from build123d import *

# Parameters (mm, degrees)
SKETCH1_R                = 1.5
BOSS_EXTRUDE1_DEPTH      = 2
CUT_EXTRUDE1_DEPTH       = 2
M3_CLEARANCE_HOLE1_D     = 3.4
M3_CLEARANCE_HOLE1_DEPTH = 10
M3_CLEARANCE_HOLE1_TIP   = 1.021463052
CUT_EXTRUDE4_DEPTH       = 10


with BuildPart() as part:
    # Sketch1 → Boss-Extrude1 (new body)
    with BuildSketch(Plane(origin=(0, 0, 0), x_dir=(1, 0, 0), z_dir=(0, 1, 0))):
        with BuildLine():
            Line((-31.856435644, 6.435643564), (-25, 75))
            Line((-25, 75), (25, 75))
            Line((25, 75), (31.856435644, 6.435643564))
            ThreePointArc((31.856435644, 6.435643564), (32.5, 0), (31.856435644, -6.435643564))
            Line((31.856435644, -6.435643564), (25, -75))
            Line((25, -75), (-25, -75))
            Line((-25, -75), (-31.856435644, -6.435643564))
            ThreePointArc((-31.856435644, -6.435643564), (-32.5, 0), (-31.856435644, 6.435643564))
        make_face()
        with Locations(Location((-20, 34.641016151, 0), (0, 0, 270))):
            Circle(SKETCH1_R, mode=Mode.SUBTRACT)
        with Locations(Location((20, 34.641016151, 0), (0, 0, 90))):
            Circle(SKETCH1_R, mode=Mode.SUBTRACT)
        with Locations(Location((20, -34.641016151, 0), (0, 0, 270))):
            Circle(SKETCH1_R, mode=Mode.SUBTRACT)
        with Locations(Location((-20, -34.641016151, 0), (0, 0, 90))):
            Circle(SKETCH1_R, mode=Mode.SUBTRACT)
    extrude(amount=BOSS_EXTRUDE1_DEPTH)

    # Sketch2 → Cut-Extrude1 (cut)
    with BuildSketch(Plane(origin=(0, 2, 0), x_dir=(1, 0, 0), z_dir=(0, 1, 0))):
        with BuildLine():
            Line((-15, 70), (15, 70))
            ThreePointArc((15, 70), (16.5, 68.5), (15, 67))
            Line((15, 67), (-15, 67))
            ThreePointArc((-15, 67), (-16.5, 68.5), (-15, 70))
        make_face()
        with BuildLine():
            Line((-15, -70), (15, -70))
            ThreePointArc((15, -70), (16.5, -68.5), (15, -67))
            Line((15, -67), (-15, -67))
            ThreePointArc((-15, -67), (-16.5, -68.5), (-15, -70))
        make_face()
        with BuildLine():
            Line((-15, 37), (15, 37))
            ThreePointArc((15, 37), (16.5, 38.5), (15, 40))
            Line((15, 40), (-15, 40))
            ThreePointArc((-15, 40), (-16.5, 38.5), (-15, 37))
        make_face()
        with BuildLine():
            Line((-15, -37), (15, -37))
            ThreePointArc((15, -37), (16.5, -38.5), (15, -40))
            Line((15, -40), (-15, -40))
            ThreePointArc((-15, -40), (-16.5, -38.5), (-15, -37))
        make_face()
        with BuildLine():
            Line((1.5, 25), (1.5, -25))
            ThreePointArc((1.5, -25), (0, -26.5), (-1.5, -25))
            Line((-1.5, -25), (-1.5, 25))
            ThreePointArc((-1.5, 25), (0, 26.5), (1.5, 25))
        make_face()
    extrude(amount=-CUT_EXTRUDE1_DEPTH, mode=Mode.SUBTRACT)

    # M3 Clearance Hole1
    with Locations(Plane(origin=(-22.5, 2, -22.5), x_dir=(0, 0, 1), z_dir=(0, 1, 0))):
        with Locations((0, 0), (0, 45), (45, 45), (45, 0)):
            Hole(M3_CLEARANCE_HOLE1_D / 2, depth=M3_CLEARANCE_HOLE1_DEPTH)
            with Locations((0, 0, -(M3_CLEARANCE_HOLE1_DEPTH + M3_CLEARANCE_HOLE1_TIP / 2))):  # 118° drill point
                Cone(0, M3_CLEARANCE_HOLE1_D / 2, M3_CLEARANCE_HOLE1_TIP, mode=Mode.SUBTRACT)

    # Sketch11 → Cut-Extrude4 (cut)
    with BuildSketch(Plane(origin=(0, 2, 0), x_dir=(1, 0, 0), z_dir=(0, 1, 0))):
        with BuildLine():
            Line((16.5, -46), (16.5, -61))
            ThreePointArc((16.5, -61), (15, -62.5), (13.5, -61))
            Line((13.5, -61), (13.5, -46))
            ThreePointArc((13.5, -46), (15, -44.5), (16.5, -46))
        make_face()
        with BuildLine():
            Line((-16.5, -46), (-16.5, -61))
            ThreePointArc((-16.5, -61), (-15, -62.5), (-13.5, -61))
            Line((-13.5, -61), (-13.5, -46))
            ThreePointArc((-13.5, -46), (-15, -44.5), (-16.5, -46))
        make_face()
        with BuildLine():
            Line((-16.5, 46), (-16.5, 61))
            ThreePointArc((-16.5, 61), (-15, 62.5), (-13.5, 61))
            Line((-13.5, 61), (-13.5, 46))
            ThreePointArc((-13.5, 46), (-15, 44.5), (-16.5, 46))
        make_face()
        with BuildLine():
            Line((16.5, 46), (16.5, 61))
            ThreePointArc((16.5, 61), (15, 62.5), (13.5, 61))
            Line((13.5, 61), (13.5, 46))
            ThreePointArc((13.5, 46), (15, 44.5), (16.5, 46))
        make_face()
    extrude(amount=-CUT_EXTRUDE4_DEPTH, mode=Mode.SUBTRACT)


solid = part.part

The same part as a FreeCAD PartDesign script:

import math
import FreeCAD as App
import Part
import Sketcher
Q = App.Units.Quantity

doc = App.newDocument("Part")
body = doc.addObject("PartDesign::Body", "Body")

# Sketch on XZ plane
sketch1 = body.newObject("Sketcher::SketchObject", "Sketch")
sketch1.AttachmentSupport = (doc.getObject("XZ_Plane"), [""])
sketch1.MapMode = "FlatFace"
sketch1.addGeometry([
    Part.LineSegment(App.Vector(-25, -75, 0), App.Vector(-31.856436, -6.435644, 0)),  # 0
    Part.ArcOfCircle(Part.Circle(App.Vector(0, 0, 0), App.Vector(0, 0, 1), 32.5), math.radians(168.578814), math.radians(191.421186)),  # 1
    Part.LineSegment(App.Vector(-31.856436, 6.435644, 0), App.Vector(-25, 75, 0)),  # 2
    Part.LineSegment(App.Vector(-25, 75, 0), App.Vector(25, 75, 0)),  # 3
    Part.LineSegment(App.Vector(25, 75, 0), App.Vector(31.856436, 6.435644, 0)),  # 4
    Part.ArcOfCircle(Part.Circle(App.Vector(0, 0, 0), App.Vector(0, 0, 1), 32.5), math.radians(-11.421186), math.radians(11.421186)),  # 5
    Part.LineSegment(App.Vector(31.856436, -6.435644, 0), App.Vector(25, -75, 0)),  # 6
    Part.LineSegment(App.Vector(25, -75, 0), App.Vector(-25, -75, 0)),  # 7
    Part.Circle(App.Vector(20, 34.641016, 0), App.Vector(0, 0, 1), 1.5),  # 8
    Part.Circle(App.Vector(-20, 34.641016, 0), App.Vector(0, 0, 1), 1.5),  # 9
    Part.Circle(App.Vector(20, -34.641016, 0), App.Vector(0, 0, 1), 1.5),  # 10
    Part.Circle(App.Vector(-20, -34.641016, 0), App.Vector(0, 0, 1), 1.5),  # 11
], False)
sketch1.addConstraint([
    Sketcher.Constraint("Coincident", 0, 2, 1, 2),
    Sketcher.Constraint("Coincident", 1, 1, 2, 1),
    Sketcher.Constraint("Coincident", 2, 2, 3, 1),
    Sketcher.Constraint("Coincident", 3, 2, 4, 1),
    Sketcher.Constraint("Coincident", 4, 2, 5, 2),
    Sketcher.Constraint("Coincident", 5, 1, 6, 1),
    Sketcher.Constraint("Coincident", 6, 2, 7, 1),
    Sketcher.Constraint("Coincident", 7, 2, 0, 1),
    Sketcher.Constraint("Horizontal", 3),
    Sketcher.Constraint("Horizontal", 7),
    Sketcher.Constraint("Coincident", 1, 3, -1, 1),
    Sketcher.Constraint("Coincident", 5, 3, -1, 1),
    Sketcher.Constraint("Equal", 1, 5),
    Sketcher.Constraint("Equal", 8, 9),
    Sketcher.Constraint("Equal", 9, 10),
    Sketcher.Constraint("Equal", 10, 11),
    Sketcher.Constraint("Symmetric", 9, 3, 10, 3, -1, 1),
    Sketcher.Constraint("Symmetric", 8, 3, 11, 3, -1, 1),
    Sketcher.Constraint("Symmetric", 2, 2, 6, 2, -1, 1),
    Sketcher.Constraint("Symmetric", 8, 3, 9, 3, -2),
    Sketcher.Constraint("Parallel", 0, 4),
    Sketcher.Constraint("Parallel", 2, 6),
    Sketcher.Constraint("Horizontal", 1, 1, 4, 2),
    Sketcher.Constraint("Horizontal", 0, 2, 5, 1),
    Sketcher.Constraint("Vertical", 3, 2, 6, 2),
    Sketcher.Constraint("Diameter", 8, Q("3 mm")),
    Sketcher.Constraint("Radius", 1, Q("32.5 mm")),
    Sketcher.Constraint("DistanceX", 3, 1, 3, 2, Q("50 mm")),
    Sketcher.Constraint("DistanceX", -1, 1, 8, 3, Q("20 mm")),
    Sketcher.Constraint("DistanceY", -1, 1, 2, 2, Q("75 mm")),
    Sketcher.Constraint("DistanceY", 0, 2, 9, 3, Q("41.07666 mm")),
    Sketcher.Constraint("Distance", 0, Q("68.906325 mm")),
])
pad1 = body.newObject("PartDesign::Pad", "Pad")
pad1.Profile = sketch1
pad1.Length = 2
pad1.Reversed = True

# Sketch on XZ plane
sketch2 = body.newObject("Sketcher::SketchObject", "Sketch001")
sketch2.AttachmentSupport = (doc.getObject("XZ_Plane"), [""])
sketch2.MapMode = "FlatFace"
sketch2.AttachmentOffset = App.Placement(App.Vector(0, 0, -2), App.Rotation())
sketch2.addGeometry([
    Part.LineSegment(App.Vector(15, -70, 0), App.Vector(-15, -70, 0)),  # 0
    Part.ArcOfCircle(Part.Circle(App.Vector(-15, -68.5, 0), App.Vector(0, 0, 1), 1.5), math.radians(90), math.radians(270)),  # 1
    Part.LineSegment(App.Vector(-15, -67, 0), App.Vector(15, -67, 0)),  # 2
    Part.ArcOfCircle(Part.Circle(App.Vector(15, -68.5, 0), App.Vector(0, 0, 1), 1.5), math.radians(-90), math.radians(90)),  # 3
    Part.LineSegment(App.Vector(-15, 70, 0), App.Vector(15, 70, 0)),  # 4
    Part.ArcOfCircle(Part.Circle(App.Vector(15, 68.5, 0), App.Vector(0, 0, 1), 1.5), math.radians(-90), math.radians(90)),  # 5
    Part.LineSegment(App.Vector(15, 67, 0), App.Vector(-15, 67, 0)),  # 6
    Part.ArcOfCircle(Part.Circle(App.Vector(-15, 68.5, 0), App.Vector(0, 0, 1), 1.5), math.radians(90), math.radians(270)),  # 7
    Part.LineSegment(App.Vector(-15, -37, 0), App.Vector(15, -37, 0)),  # 8
    Part.ArcOfCircle(Part.Circle(App.Vector(15, -38.5, 0), App.Vector(0, 0, 1), 1.5), math.radians(-90), math.radians(90)),  # 9
    Part.LineSegment(App.Vector(15, -40, 0), App.Vector(-15, -40, 0)),  # 10
    Part.ArcOfCircle(Part.Circle(App.Vector(-15, -38.5, 0), App.Vector(0, 0, 1), 1.5), math.radians(90), math.radians(270)),  # 11
    Part.LineSegment(App.Vector(15, 37, 0), App.Vector(-15, 37, 0)),  # 12
    Part.ArcOfCircle(Part.Circle(App.Vector(-15, 38.5, 0), App.Vector(0, 0, 1), 1.5), math.radians(90), math.radians(270)),  # 13
    Part.LineSegment(App.Vector(-15, 40, 0), App.Vector(15, 40, 0)),  # 14
    Part.ArcOfCircle(Part.Circle(App.Vector(15, 38.5, 0), App.Vector(0, 0, 1), 1.5), math.radians(-90), math.radians(90)),  # 15
    Part.LineSegment(App.Vector(1.5, 25, 0), App.Vector(1.5, -25, 0)),  # 16
    Part.ArcOfCircle(Part.Circle(App.Vector(0, -25, 0), App.Vector(0, 0, 1), 1.5), math.radians(180), math.radians(360)),  # 17
    Part.LineSegment(App.Vector(-1.5, -25, 0), App.Vector(-1.5, 25, 0)),  # 18
    Part.ArcOfCircle(Part.Circle(App.Vector(0, 25, 0), App.Vector(0, 0, 1), 1.5), math.radians(0), math.radians(180)),  # 19
], False)
sketch2.addConstraint([
    Sketcher.Constraint("Tangent", 0, 2, 1, 2),
    Sketcher.Constraint("Tangent", 1, 1, 2, 1),
    Sketcher.Constraint("Tangent", 2, 2, 3, 2),
    Sketcher.Constraint("Tangent", 3, 1, 0, 1),
    Sketcher.Constraint("Tangent", 4, 2, 5, 2),
    Sketcher.Constraint("Tangent", 5, 1, 6, 1),
    Sketcher.Constraint("Tangent", 6, 2, 7, 2),
    Sketcher.Constraint("Tangent", 7, 1, 4, 1),
    Sketcher.Constraint("Tangent", 8, 2, 9, 2),
    Sketcher.Constraint("Tangent", 9, 1, 10, 1),
    Sketcher.Constraint("Tangent", 10, 2, 11, 2),
    Sketcher.Constraint("Tangent", 11, 1, 8, 1),
    Sketcher.Constraint("Tangent", 12, 2, 13, 2),
    Sketcher.Constraint("Tangent", 13, 1, 14, 1),
    Sketcher.Constraint("Tangent", 14, 2, 15, 2),
    Sketcher.Constraint("Tangent", 15, 1, 12, 1),
    Sketcher.Constraint("Tangent", 16, 2, 17, 2),
    Sketcher.Constraint("Tangent", 17, 1, 18, 1),
    Sketcher.Constraint("Tangent", 18, 2, 19, 2),
    Sketcher.Constraint("Tangent", 19, 1, 16, 1),
    Sketcher.Constraint("Horizontal", 0),
    Sketcher.Constraint("Horizontal", 2),
    Sketcher.Constraint("Horizontal", 4),
    Sketcher.Constraint("Horizontal", 6),
    Sketcher.Constraint("Horizontal", 8),
    Sketcher.Constraint("Horizontal", 10),
    Sketcher.Constraint("Horizontal", 12),
    Sketcher.Constraint("Horizontal", 14),
    Sketcher.Constraint("Vertical", 16),
    Sketcher.Constraint("Vertical", 18),
    Sketcher.Constraint("Equal", 3, 5),
    Sketcher.Constraint("Equal", 7, 9),
    Sketcher.Constraint("Equal", 11, 13),
    Sketcher.Constraint("Equal", 15, 17),
    Sketcher.Constraint("Symmetric", 1, 3, 5, 3, -1, 1),
    Sketcher.Constraint("Symmetric", 9, 3, 13, 3, -1, 1),
    Sketcher.Constraint("Symmetric", 17, 3, 19, 3, -1, 1),
    Sketcher.Constraint("Vertical", 3, 3, 5, 3),
    Sketcher.Constraint("Vertical", 1, 3, 7, 3),
    Sketcher.Constraint("Vertical", 5, 3, 9, 3),
    Sketcher.Constraint("Vertical", 7, 3, 11, 3),
    Sketcher.Constraint("Vertical", 9, 3, 15, 3),
    Sketcher.Constraint("Radius", 1, Q("1.5 mm")),
    Sketcher.Constraint("DistanceX", 0, 2, 0, 1, Q("30 mm")),
    Sketcher.Constraint("DistanceY", 16, 2, 16, 1, Q("50 mm")),
    Sketcher.Constraint("DistanceY", 0, 2, -1, 1, Q("70 mm")),
    Sketcher.Constraint("DistanceY", 8, 2, -1, 1, Q("37 mm")),
])
pocket1 = body.newObject("PartDesign::Pocket", "Pocket")
pocket1.Profile = sketch2
pocket1.Length = 2
pocket1.Reversed = True

# Sketch on XZ plane
sketch3 = body.newObject("Sketcher::SketchObject", "Sketch002")
sketch3.AttachmentSupport = (doc.getObject("XZ_Plane"), [""])
sketch3.MapMode = "FlatFace"
sketch3.AttachmentOffset = App.Placement(App.Vector(0, 0, -2), App.Rotation())
sketch3.addGeometry([
    Part.Circle(App.Vector(-22.5, -22.5, 0), App.Vector(0, 0, 1), 1.7),
    Part.Circle(App.Vector(22.5, -22.5, 0), App.Vector(0, 0, 1), 1.7),
    Part.Circle(App.Vector(22.5, 22.5, 0), App.Vector(0, 0, 1), 1.7),
    Part.Circle(App.Vector(-22.5, 22.5, 0), App.Vector(0, 0, 1), 1.7),
], False)
sketch3.addConstraint([
    Sketcher.Constraint("Equal", 0, 1),
    Sketcher.Constraint("Equal", 1, 2),
    Sketcher.Constraint("Equal", 2, 3),
    Sketcher.Constraint("Symmetric", 0, 3, 2, 3, -1, 1),
    Sketcher.Constraint("Symmetric", 1, 3, 3, 3, -1, 1),
    Sketcher.Constraint("Symmetric", 0, 3, 1, 3, -2),
    Sketcher.Constraint("Diameter", 0, Q("3.4 mm")),
    Sketcher.Constraint("DistanceX", 0, 3, 1, 3, Q("45 mm")),
    Sketcher.Constraint("DistanceY", 1, 3, 2, 3, Q("45 mm")),
])
doc.recompute()
hole = body.newObject("PartDesign::Hole", "Hole")
hole.Profile = sketch3
hole.ThreadType = "None"
hole.Diameter = 3.4
hole.DepthType = "Dimension"
hole.Depth = 10
hole.DrillPoint = "Angled"
hole.DrillPointAngle = 118
hole.Reversed = True

# Sketch on XZ plane
sketch4 = body.newObject("Sketcher::SketchObject", "Sketch003")
sketch4.AttachmentSupport = (doc.getObject("XZ_Plane"), [""])
sketch4.MapMode = "FlatFace"
sketch4.AttachmentOffset = App.Placement(App.Vector(0, 0, -2), App.Rotation())
sketch4.addGeometry([
    Part.LineSegment(App.Vector(16.5, 61, 0), App.Vector(16.5, 46, 0)),  # 0
    Part.ArcOfCircle(Part.Circle(App.Vector(15, 46, 0), App.Vector(0, 0, 1), 1.5), math.radians(180), math.radians(360)),  # 1
    Part.LineSegment(App.Vector(13.5, 46, 0), App.Vector(13.5, 61, 0)),  # 2
    Part.ArcOfCircle(Part.Circle(App.Vector(15, 61, 0), App.Vector(0, 0, 1), 1.5), math.radians(0), math.radians(180)),  # 3
    Part.LineSegment(App.Vector(-16.5, 46, 0), App.Vector(-16.5, 61, 0)),  # 4
    Part.ArcOfCircle(Part.Circle(App.Vector(-15, 61, 0), App.Vector(0, 0, 1), 1.5), math.radians(0), math.radians(180)),  # 5
    Part.LineSegment(App.Vector(-13.5, 61, 0), App.Vector(-13.5, 46, 0)),  # 6
    Part.ArcOfCircle(Part.Circle(App.Vector(-15, 46, 0), App.Vector(0, 0, 1), 1.5), math.radians(180), math.radians(360)),  # 7
    Part.LineSegment(App.Vector(-16.5, -61, 0), App.Vector(-16.5, -46, 0)),  # 8
    Part.ArcOfCircle(Part.Circle(App.Vector(-15, -46, 0), App.Vector(0, 0, 1), 1.5), math.radians(0), math.radians(180)),  # 9
    Part.LineSegment(App.Vector(-13.5, -46, 0), App.Vector(-13.5, -61, 0)),  # 10
    Part.ArcOfCircle(Part.Circle(App.Vector(-15, -61, 0), App.Vector(0, 0, 1), 1.5), math.radians(180), math.radians(360)),  # 11
    Part.LineSegment(App.Vector(16.5, -46, 0), App.Vector(16.5, -61, 0)),  # 12
    Part.ArcOfCircle(Part.Circle(App.Vector(15, -61, 0), App.Vector(0, 0, 1), 1.5), math.radians(180), math.radians(360)),  # 13
    Part.LineSegment(App.Vector(13.5, -61, 0), App.Vector(13.5, -46, 0)),  # 14
    Part.ArcOfCircle(Part.Circle(App.Vector(15, -46, 0), App.Vector(0, 0, 1), 1.5), math.radians(0), math.radians(180)),  # 15
], False)
sketch4.addConstraint([
    Sketcher.Constraint("Tangent", 0, 2, 1, 2),
    Sketcher.Constraint("Tangent", 1, 1, 2, 1),
    Sketcher.Constraint("Tangent", 2, 2, 3, 2),
    Sketcher.Constraint("Tangent", 3, 1, 0, 1),
    Sketcher.Constraint("Tangent", 4, 2, 5, 2),
    Sketcher.Constraint("Tangent", 5, 1, 6, 1),
    Sketcher.Constraint("Tangent", 6, 2, 7, 2),
    Sketcher.Constraint("Tangent", 7, 1, 4, 1),
    Sketcher.Constraint("Tangent", 8, 2, 9, 2),
    Sketcher.Constraint("Tangent", 9, 1, 10, 1),
    Sketcher.Constraint("Tangent", 10, 2, 11, 2),
    Sketcher.Constraint("Tangent", 11, 1, 8, 1),
    Sketcher.Constraint("Tangent", 12, 2, 13, 2),
    Sketcher.Constraint("Tangent", 13, 1, 14, 1),
    Sketcher.Constraint("Tangent", 14, 2, 15, 2),
    Sketcher.Constraint("Tangent", 15, 1, 12, 1),
    Sketcher.Constraint("Vertical", 0),
    Sketcher.Constraint("Vertical", 2),
    Sketcher.Constraint("Vertical", 4),
    Sketcher.Constraint("Vertical", 6),
    Sketcher.Constraint("Vertical", 8),
    Sketcher.Constraint("Vertical", 10),
    Sketcher.Constraint("Vertical", 12),
    Sketcher.Constraint("Vertical", 14),
    Sketcher.Constraint("Equal", 3, 5),
    Sketcher.Constraint("Equal", 7, 9),
    Sketcher.Constraint("Equal", 11, 13),
    Sketcher.Constraint("Symmetric", 1, 3, 9, 3, -1, 1),
    Sketcher.Constraint("Symmetric", 5, 3, 13, 3, -1, 1),
    Sketcher.Constraint("Symmetric", 3, 3, 5, 3, -2),
    Sketcher.Constraint("Horizontal", 1, 3, 7, 3),
    Sketcher.Constraint("Horizontal", 11, 3, 13, 3),
    Sketcher.Constraint("Horizontal", 9, 3, 15, 3),
    Sketcher.Constraint("Radius", 1, Q("1.5 mm")),
    Sketcher.Constraint("DistanceY", 0, 2, 0, 1, Q("15 mm")),
    Sketcher.Constraint("DistanceX", -1, 1, 1, 3, Q("15 mm")),
    Sketcher.Constraint("DistanceY", -1, 1, 1, 3, Q("46 mm")),
])
pocket2 = body.newObject("PartDesign::Pocket", "Pocket001")
pocket2.Profile = sketch4
pocket2.Length = 10
pocket2.Reversed = True

doc.recompute()
